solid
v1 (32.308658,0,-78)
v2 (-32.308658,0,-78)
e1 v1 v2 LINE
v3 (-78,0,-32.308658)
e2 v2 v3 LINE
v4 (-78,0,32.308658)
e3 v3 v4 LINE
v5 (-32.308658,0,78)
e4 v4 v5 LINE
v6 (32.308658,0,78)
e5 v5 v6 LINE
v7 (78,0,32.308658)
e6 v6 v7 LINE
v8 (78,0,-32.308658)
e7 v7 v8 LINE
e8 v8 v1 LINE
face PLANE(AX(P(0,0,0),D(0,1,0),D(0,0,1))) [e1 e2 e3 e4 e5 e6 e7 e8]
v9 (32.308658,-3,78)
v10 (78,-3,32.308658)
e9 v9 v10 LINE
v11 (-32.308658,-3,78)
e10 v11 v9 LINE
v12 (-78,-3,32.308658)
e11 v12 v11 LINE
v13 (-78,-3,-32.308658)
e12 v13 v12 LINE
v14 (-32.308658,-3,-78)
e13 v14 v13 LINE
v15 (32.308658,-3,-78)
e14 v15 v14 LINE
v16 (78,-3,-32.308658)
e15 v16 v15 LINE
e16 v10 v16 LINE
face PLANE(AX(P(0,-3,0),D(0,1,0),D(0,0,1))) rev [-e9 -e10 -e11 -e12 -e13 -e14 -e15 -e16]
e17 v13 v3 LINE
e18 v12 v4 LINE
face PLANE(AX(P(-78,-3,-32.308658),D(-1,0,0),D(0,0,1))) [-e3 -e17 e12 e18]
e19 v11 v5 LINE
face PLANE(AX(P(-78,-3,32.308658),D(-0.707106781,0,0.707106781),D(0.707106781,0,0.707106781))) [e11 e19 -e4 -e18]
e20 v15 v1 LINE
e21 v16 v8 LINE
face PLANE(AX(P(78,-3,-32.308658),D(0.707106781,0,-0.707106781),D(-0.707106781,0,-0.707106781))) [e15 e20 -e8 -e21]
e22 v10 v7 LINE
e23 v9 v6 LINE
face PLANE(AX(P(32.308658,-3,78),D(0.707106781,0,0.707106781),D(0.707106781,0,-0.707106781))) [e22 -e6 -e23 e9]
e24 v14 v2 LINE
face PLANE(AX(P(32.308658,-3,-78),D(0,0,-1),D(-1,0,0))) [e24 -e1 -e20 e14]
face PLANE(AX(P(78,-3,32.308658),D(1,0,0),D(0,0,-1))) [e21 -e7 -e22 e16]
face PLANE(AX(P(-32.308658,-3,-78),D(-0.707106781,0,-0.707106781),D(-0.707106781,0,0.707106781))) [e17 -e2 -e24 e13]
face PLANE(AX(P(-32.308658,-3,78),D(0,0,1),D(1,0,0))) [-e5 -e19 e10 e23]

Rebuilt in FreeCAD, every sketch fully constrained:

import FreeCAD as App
import Part
import Sketcher

V = App.Vector
Q = App.Units.Quantity

doc = App.newDocument("Part")
body = doc.addObject("PartDesign::Body", "Body")

sketch1 = body.newObject("Sketcher::SketchObject", "Sketch")
sketch1.AttachmentSupport = (doc.getObject("XZ_Plane"), [""])
sketch1.MapMode = "FlatFace"
sketch1.addGeometry(Part.LineSegment(V(78, -32, 0), V(32, -78, 0)), False)
sketch1.addGeometry(Part.LineSegment(V(32, -78, 0), V(-32, -78, 0)), False)
sketch1.addGeometry(Part.LineSegment(V(-32, -78, 0), V(-78, -32, 0)), False)
sketch1.addGeometry(Part.LineSegment(V(-78, -32, 0), V(-78, 32, 0)), False)
sketch1.addGeometry(Part.LineSegment(V(-78, 32, 0), V(-32, 78, 0)), False)
sketch1.addGeometry(Part.LineSegment(V(-32, 78, 0), V(32, 78, 0)), False)
sketch1.addGeometry(Part.LineSegment(V(32, 78, 0), V(78, 32, 0)), False)
sketch1.addGeometry(Part.LineSegment(V(78, 32, 0), V(78, -32, 0)), False)
sketch1.addConstraint(Sketcher.Constraint("Coincident", 0, 2, 1, 1))
sketch1.addConstraint(Sketcher.Constraint("Coincident", 1, 2, 2, 1))
sketch1.addConstraint(Sketcher.Constraint("Coincident", 2, 2, 3, 1))
sketch1.addConstraint(Sketcher.Constraint("Coincident", 3, 2, 4, 1))
sketch1.addConstraint(Sketcher.Constraint("Coincident", 4, 2, 5, 1))
sketch1.addConstraint(Sketcher.Constraint("Coincident", 5, 2, 6, 1))
sketch1.addConstraint(Sketcher.Constraint("Coincident", 6, 2, 7, 1))
sketch1.addConstraint(Sketcher.Constraint("Coincident", 7, 2, 0, 1))
sketch1.addConstraint(Sketcher.Constraint("Horizontal", 1))
sketch1.addConstraint(Sketcher.Constraint("Vertical", 3))
sketch1.addConstraint(Sketcher.Constraint("Horizontal", 5))
sketch1.addConstraint(Sketcher.Constraint("Vertical", 7))
sketch1.addConstraint(Sketcher.Constraint("Symmetric", 0, 2, 4, 2, -1, 1))
sketch1.addConstraint(Sketcher.Constraint("Symmetric", 2, 2, 6, 2, -1, 1))
sketch1.addConstraint(Sketcher.Constraint("Perpendicular", 0, 2))
sketch1.addConstraint(Sketcher.Constraint("Perpendicular", 2, 4))
sketch1.addConstraint(Sketcher.Constraint("Perpendicular", 4, 6))
sketch1.addConstraint(Sketcher.Constraint("Horizontal", 3, 2, 6, 2))
sketch1.addConstraint(Sketcher.Constraint("Vertical", 1, 2, 4, 2))
sketch1.addConstraint(Sketcher.Constraint("Equal", 5, 3))
sketch1.addConstraint(Sketcher.Constraint("DistanceY", 0, 2, -1, 1, Q("78 mm")))
sketch1.addConstraint(Sketcher.Constraint("DistanceX", 1, 2, 1, 1, Q("64.617316 mm")))
pad1 = body.newObject("PartDesign::Pad", "Pad")
pad1.Profile = sketch1
pad1.Length = 3

doc.recompute()
